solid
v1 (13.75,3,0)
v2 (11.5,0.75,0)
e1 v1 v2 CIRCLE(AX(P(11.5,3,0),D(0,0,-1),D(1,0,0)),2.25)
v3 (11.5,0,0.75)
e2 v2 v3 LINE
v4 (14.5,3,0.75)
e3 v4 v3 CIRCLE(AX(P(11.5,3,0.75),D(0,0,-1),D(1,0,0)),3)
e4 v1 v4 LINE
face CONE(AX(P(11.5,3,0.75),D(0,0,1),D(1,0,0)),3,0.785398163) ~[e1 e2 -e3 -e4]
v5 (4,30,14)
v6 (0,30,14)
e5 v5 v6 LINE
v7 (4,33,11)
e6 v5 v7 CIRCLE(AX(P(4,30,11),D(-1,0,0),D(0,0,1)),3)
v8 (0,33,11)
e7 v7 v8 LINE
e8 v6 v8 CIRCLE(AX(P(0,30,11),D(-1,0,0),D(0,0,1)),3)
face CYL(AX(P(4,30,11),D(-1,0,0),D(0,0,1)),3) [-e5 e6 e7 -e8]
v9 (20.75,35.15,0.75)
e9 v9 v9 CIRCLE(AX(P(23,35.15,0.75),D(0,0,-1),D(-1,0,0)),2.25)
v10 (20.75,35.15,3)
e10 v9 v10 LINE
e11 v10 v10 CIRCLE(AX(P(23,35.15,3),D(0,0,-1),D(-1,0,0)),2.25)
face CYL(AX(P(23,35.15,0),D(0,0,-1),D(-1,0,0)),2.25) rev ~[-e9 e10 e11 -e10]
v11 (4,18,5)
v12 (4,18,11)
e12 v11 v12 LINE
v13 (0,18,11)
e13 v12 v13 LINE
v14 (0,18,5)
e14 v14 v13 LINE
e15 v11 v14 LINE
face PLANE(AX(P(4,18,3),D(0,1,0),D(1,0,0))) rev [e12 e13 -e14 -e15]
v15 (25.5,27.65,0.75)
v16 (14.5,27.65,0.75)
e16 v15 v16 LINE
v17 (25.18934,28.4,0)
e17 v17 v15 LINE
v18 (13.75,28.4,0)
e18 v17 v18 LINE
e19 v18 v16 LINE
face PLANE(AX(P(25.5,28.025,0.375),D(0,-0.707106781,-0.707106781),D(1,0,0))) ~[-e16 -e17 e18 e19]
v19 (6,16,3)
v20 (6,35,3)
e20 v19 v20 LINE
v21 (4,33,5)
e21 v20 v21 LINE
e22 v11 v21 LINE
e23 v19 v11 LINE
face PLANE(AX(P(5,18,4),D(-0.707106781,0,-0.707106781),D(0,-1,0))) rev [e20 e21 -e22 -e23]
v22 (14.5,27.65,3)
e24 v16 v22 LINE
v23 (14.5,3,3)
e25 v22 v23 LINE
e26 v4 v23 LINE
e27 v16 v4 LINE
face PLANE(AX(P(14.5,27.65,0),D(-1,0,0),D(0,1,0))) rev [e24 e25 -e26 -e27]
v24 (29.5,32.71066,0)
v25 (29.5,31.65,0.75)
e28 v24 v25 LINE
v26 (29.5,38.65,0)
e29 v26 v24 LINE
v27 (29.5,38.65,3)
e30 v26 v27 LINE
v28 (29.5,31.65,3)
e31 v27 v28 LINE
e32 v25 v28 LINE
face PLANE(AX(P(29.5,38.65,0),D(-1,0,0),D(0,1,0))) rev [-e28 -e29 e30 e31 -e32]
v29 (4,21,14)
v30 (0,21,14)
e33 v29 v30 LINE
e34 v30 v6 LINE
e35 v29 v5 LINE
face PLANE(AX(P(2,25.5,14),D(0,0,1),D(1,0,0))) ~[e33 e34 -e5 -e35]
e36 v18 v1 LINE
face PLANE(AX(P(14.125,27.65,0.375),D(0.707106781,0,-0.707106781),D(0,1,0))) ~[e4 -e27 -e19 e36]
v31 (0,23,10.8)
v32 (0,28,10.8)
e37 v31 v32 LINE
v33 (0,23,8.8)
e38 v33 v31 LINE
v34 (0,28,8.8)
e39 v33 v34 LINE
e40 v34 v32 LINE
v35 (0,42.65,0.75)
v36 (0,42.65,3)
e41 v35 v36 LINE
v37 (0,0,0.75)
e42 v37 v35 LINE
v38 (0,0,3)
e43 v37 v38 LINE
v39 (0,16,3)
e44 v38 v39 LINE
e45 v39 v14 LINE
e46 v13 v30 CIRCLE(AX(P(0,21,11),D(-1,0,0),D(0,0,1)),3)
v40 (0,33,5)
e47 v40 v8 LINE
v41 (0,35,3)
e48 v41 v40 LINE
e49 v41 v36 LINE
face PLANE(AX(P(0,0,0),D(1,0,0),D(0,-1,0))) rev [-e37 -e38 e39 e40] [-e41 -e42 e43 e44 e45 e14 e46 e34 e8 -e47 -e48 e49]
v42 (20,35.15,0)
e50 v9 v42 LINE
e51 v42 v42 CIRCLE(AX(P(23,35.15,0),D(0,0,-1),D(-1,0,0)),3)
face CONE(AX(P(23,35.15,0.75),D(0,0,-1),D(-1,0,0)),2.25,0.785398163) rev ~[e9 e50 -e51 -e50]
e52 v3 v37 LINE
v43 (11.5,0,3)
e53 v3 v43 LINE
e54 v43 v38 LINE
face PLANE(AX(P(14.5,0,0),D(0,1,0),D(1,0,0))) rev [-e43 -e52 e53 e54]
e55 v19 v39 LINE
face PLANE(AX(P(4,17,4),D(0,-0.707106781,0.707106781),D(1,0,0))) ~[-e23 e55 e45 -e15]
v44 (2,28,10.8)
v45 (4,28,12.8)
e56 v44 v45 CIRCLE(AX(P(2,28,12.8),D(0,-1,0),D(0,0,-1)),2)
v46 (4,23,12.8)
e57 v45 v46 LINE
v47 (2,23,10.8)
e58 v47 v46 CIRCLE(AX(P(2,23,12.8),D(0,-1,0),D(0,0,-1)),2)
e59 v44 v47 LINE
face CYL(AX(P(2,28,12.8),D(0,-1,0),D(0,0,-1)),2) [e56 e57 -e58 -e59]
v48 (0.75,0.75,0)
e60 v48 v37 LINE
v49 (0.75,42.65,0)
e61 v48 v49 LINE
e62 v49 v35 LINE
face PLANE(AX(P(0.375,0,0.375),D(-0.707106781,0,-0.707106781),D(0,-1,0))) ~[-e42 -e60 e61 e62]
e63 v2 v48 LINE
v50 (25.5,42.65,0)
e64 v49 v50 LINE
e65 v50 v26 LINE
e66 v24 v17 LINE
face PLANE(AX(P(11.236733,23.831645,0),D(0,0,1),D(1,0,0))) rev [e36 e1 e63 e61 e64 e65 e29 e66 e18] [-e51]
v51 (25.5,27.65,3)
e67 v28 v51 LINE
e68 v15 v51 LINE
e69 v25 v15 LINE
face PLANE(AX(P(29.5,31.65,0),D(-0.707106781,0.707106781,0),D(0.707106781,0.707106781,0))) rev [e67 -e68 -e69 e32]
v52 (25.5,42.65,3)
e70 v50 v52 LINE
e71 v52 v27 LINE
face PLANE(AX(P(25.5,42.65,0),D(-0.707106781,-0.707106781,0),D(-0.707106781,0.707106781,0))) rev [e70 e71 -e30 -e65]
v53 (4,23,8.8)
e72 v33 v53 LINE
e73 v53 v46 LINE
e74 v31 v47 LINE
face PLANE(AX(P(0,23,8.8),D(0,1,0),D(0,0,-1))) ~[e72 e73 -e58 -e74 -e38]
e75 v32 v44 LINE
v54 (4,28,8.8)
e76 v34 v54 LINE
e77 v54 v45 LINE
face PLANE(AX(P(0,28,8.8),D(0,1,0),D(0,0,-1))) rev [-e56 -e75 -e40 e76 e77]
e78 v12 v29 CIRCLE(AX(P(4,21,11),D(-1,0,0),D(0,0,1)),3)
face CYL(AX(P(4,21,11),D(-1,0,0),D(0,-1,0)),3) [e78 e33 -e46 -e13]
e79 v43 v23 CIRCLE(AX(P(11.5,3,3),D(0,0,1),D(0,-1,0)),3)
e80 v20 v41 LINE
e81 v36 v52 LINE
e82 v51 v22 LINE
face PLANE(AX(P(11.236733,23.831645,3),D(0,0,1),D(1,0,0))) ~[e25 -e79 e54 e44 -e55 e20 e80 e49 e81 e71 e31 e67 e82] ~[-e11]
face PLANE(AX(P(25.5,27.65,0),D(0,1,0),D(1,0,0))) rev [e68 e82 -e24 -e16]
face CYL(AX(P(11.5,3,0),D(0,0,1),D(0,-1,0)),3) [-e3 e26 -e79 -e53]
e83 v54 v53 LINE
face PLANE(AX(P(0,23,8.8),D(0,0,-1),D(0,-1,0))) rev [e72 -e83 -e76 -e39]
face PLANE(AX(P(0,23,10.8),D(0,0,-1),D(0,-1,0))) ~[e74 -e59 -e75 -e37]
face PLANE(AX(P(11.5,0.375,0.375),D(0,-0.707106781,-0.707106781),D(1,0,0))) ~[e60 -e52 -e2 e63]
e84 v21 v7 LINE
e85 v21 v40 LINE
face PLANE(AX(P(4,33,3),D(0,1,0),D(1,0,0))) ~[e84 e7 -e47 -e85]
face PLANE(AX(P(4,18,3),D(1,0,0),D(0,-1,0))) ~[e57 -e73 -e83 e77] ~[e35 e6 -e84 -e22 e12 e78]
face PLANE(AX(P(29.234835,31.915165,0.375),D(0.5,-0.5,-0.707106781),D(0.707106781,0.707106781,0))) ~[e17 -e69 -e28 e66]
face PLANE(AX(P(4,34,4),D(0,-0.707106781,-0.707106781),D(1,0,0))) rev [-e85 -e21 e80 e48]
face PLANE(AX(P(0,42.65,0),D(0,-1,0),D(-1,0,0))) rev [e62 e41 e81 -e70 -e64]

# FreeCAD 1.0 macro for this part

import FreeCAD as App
import Part
import Sketcher

V = App.Vector


def edges_at(feature, points):
    """Names of the edges that pass closest to the given points."""
    edges = feature.Shape.Edges
    near = lambda p: min(range(len(edges)), key=lambda i: edges[i].distToShape(Part.Vertex(*p))[0])
    return sorted({f"Edge{near(p) + 1}" for p in points})


def add_polygon(sketch, points):
    """Adds a closed chain of lines whose ends are joined by coincident constraints."""
    first, n = sketch.GeometryCount, len(points)
    for a, b in zip(points, points[1:] + points[:1]):
        sketch.addGeometry(Part.LineSegment(App.Vector(*a, 0), App.Vector(*b, 0)), False)
    for i in range(n):
        sketch.addConstraint(Sketcher.Constraint("Coincident", first + i, 2, first + (i + 1) % n, 1))

doc = App.newDocument("Part")
body = doc.addObject("PartDesign::Body", "Body")

sketch1 = body.newObject("Sketcher::SketchObject", "Sketch")
sketch1.AttachmentSupport = (doc.getObject("XY_Plane"), [""])
sketch1.MapMode = "FlatFace"
add_polygon(sketch1, [(0, 42.6), (-25.5, 42.6), (-29.5, 38.6), (-29.5, 31.6), (-25.5, 27.6), (-14.5, 27.6), (-14.5, 0), (0, 0)])
sketch1.addGeometry(Part.Circle(V(-23, 35.1, 0), V(0, 0, 1), 2.2), False)
sketch1.addConstraint([
    Sketcher.Constraint("Horizontal", 0),
    Sketcher.Constraint("Vertical", 2),
    Sketcher.Constraint("Horizontal", 4),
    Sketcher.Constraint("Vertical", 5),
    Sketcher.Constraint("Horizontal", 6),
    Sketcher.Constraint("Vertical", 7),
    Sketcher.Constraint("Coincident", 6, 2, -1, 1),
    Sketcher.Constraint("Perpendicular", 1, 3),
    Sketcher.Constraint("Vertical", 0, 2, 3, 2),
    Sketcher.Constraint("Equal", 1, 3),
    Sketcher.Constraint("Diameter", 8, 4.5),
    Sketcher.Constraint("DistanceX", 4, 1, 4, 2, 11.0),
    Sketcher.Constraint("DistanceY", 2, 2, 2, 1, 7.0),
    Sketcher.Constraint("DistanceX", 0, 2, 0, 1, 25.5),
    Sketcher.Constraint("DistanceX", 8, 3, -1, 1, 23.0),
    Sketcher.Constraint("DistanceX", 1, 2, 0, 2, 4.0),
    Sketcher.Constraint("DistanceY", 5, 2, 5, 1, 27.65),
    Sketcher.Constraint("DistanceY", 8, 3, 0, 2, 7.5),
])
pad1 = body.newObject("PartDesign::Pad", "Pad")
pad1.Profile = sketch1
pad1.Length = 3

sketch2 = body.newObject("Sketcher::SketchObject", "Sketch001")
sketch2.AttachmentSupport = (doc.getObject("XY_Plane"), [""])
sketch2.MapMode = "FlatFace"
sketch2.AttachmentOffset = App.Placement(V(0, 0, 3), App.Rotation())
add_polygon(sketch2, [(-4, 33), (-4, 18), (0, 18), (0, 33)])
sketch2.addConstraint([
    Sketcher.Constraint("Vertical", 0),
    Sketcher.Constraint("Horizontal", 1),
    Sketcher.Constraint("Vertical", 2),
    Sketcher.Constraint("Horizontal", 3),
    Sketcher.Constraint("PointOnObject", 1, 2, -2),
    Sketcher.Constraint("DistanceX", 1, 1, 1, 2, 4.0),
    Sketcher.Constraint("DistanceY", 0, 2, 0, 1, 15.0),
    Sketcher.Constraint("DistanceY", -1, 1, 0, 2, 18.0),
])
pad2 = body.newObject("PartDesign::Pad", "Pad001")
pad2.Profile = sketch2
pad2.Length = 11

sketch3 = body.newObject("Sketcher::SketchObject", "Sketch002")
sketch3.AttachmentSupport = (doc.getObject("YZ_Plane"), [""])
sketch3.MapMode = "FlatFace"
add_polygon(sketch3, [(23, 10.8), (23, 8.8), (28, 8.8), (28, 10.8)])
sketch3.addConstraint([
    Sketcher.Constraint("Vertical", 0),
    Sketcher.Constraint("Horizontal", 1),
    Sketcher.Constraint("Vertical", 2),
    Sketcher.Constraint("Horizontal", 3),
    Sketcher.Constraint("DistanceX", 1, 1, 1, 2, 5.0),
    Sketcher.Constraint("DistanceY", 0, 2, 0, 1, 2.0),
    Sketcher.Constraint("DistanceX", -1, 1, 0, 2, 23.0),
    Sketcher.Constraint("DistanceY", -1, 1, 0, 2, 8.8),
])
pocket1 = body.newObject("PartDesign::Pocket", "Pocket")
pocket1.Profile = sketch3
pocket1.Type = "ThroughAll"
doc.recompute()

fillet = body.newObject("PartDesign::Fillet", "Fillet")
fillet.Base = (pocket1, edges_at(pocket1, [(-2, 18, 14), (-2, 33, 14), (-14.5, 0, 1.5)]))
fillet.Radius = 3
doc.recompute()

fillet2 = body.newObject("PartDesign::Fillet", "Fillet001")
fillet2.Base = (fillet, edges_at(fillet, [(-4, 25.5, 10.8)]))
fillet2.Radius = 2
doc.recompute()

chamfer = body.newObject("PartDesign::Chamfer", "Chamfer")
chamfer.Base = (fillet2, edges_at(fillet2, [
    (0, 21.325, 0),
    (-5.75, 0, 0),
    (-13.621, 0.879, 0),
    (-14.5, 15.325, 0),
    (-20, 27.65, 0),
    (-27.5, 29.65, 0),
    (-25.25, 35.15, 0),
]))
chamfer.Size = 0.75
doc.recompute()

chamfer2 = body.newObject("PartDesign::Chamfer", "Chamfer001")
chamfer2.Base = (chamfer, edges_at(chamfer, [(-2, 18, 3), (-4, 25.5, 3), (-2, 33, 3)]))
chamfer2.Size = 2
body2 = doc.addObject("PartDesign::Body", "Body001")
doc.recompute()

mirroring = doc.addObject("Part::Mirroring", "Mirroring")
mirroring.Source = body
mirroring.Base = V(0, 0, 0)
mirroring.Normal = V(1, 0, 0)
body2.BaseFeature = mirroring
doc.recompute()
body.Visibility = False
mirroring.Visibility = False

doc.recompute()
